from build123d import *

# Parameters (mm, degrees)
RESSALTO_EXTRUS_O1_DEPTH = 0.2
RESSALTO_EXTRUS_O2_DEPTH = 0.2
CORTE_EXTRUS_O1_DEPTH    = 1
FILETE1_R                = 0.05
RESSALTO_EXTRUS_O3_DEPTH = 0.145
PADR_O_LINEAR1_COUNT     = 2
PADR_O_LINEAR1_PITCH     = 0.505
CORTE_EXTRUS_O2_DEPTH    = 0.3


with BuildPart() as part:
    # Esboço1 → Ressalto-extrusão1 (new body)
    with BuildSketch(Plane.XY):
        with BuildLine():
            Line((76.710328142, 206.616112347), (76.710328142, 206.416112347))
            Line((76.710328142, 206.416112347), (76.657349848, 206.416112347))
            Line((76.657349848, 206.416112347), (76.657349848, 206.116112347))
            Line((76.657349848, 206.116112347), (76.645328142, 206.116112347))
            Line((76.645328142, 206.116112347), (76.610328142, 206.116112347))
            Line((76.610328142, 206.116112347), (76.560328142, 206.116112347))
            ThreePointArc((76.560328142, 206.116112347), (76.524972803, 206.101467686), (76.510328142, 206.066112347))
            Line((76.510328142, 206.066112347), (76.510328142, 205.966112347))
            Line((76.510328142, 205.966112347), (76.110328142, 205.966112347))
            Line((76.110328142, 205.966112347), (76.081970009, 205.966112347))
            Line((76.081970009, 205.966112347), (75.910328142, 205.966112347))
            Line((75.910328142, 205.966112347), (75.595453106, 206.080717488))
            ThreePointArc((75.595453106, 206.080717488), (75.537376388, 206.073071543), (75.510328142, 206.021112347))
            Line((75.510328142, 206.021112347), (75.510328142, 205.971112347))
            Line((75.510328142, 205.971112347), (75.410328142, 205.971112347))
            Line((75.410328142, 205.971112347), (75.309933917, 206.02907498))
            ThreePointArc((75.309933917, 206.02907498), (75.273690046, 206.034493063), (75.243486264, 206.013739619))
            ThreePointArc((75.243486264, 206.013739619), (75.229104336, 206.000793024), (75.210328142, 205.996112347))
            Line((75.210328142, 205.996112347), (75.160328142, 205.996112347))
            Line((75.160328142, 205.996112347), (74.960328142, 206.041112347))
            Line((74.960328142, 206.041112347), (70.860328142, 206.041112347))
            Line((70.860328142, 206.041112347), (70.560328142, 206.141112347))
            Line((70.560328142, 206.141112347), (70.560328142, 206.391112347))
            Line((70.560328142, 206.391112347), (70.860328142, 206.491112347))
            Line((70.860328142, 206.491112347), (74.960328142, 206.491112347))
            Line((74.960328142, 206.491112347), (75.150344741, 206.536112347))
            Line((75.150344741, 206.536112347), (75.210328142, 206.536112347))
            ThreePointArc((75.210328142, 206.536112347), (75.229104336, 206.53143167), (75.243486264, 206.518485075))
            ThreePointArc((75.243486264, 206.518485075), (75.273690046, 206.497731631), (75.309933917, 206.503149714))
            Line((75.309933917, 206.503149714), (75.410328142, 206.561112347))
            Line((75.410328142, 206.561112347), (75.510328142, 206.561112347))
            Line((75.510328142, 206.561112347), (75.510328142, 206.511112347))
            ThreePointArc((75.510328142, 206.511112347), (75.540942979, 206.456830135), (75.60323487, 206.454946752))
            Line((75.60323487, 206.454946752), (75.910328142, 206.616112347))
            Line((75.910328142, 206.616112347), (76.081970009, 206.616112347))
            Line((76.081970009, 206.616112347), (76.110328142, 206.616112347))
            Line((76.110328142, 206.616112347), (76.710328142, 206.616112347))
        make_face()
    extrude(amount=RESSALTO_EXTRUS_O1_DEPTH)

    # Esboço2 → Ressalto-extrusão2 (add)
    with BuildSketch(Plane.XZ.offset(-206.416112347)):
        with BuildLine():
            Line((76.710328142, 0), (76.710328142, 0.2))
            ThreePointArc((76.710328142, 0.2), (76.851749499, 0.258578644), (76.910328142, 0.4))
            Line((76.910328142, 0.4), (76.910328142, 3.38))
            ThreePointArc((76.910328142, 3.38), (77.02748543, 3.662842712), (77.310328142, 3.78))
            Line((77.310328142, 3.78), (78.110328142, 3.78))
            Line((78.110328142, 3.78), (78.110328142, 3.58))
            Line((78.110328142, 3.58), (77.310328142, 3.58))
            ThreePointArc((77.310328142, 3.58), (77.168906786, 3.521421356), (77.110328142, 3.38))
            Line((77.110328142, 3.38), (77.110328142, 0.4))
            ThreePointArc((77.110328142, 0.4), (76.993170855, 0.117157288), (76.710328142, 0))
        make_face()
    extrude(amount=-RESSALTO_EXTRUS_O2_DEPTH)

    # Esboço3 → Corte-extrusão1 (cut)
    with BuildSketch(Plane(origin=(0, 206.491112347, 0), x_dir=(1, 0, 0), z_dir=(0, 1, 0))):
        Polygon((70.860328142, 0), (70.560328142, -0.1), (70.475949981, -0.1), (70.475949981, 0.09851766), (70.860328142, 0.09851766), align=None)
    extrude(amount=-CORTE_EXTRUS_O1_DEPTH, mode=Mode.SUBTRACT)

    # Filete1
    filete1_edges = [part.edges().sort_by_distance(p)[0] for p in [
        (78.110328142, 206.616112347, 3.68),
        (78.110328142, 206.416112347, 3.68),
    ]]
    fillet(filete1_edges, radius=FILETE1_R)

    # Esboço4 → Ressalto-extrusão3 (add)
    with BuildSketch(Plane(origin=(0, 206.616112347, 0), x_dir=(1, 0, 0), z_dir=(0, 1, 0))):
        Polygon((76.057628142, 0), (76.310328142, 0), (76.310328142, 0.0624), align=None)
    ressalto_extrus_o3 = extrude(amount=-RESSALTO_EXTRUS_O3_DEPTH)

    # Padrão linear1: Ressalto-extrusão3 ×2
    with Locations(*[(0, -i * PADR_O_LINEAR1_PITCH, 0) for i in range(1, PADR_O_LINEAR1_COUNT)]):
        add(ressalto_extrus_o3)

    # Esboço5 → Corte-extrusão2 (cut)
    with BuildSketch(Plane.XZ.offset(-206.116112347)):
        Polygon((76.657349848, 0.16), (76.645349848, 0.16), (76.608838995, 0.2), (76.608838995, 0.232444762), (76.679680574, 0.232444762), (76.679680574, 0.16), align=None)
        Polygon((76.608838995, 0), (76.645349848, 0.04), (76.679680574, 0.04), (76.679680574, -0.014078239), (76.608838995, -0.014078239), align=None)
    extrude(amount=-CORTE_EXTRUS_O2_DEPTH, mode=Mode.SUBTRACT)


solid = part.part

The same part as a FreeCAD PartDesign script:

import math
import FreeCAD as App
import Part
import Sketcher

V = App.Vector
Q = App.Units.Quantity


def edges_at(feature, points):
    """Names of the edges that pass closest to the given points."""
    edges = feature.Shape.Edges
    near = lambda p: min(range(len(edges)), key=lambda i: edges[i].distToShape(Part.Vertex(*p))[0])
    return sorted({f"Edge{near(p) + 1}" for p in points})


def add_polygon(sketch, points):
    """Adds a closed chain of lines whose ends are joined by coincident constraints."""
    first, n = sketch.GeometryCount, len(points)
    for a, b in zip(points, points[1:] + points[:1]):
        sketch.addGeometry(Part.LineSegment(App.Vector(*a, 0), App.Vector(*b, 0)), False)
    for i in range(n):
        sketch.addConstraint(Sketcher.Constraint("Coincident", first + i, 2, first + (i + 1) % n, 1))

doc = App.newDocument("Part")
params = doc.addObject("Spreadsheet::Sheet", "Params")
for row, (alias, value) in enumerate([
    ("sketch1_radius", "0.05 mm"),
    ("sketch1_radius2", "0.04 mm"),
    ("sketch1_width", "0.8 mm"),
    ("sketch1_width2", "0.1 mm"),
    ("sketch1_width3", "4.1 mm"),
    ("pad1_length", "0.2 mm"),
    ("sketch2_radius", "0.4 mm"),
    ("sketch2_radius2", "0.2 mm"),
    ("sketch2_width", "0.8 mm"),
    ("sketch2_height", "2.98 mm"),
    ("pad2_length", "0.2 mm"),
    ("pocket1_length", "1 mm"),
    ("fillet_radius", "0.05 mm"),
    ("pad3_length", "0.145 mm"),
    ("linearpattern_pitch", "0.505 mm"),
    ("pocket2_length", "0.3 mm"),
], start=1):
    params.set(f"A{row}", alias)
    params.set(f"B{row}", "=" + value)
    params.setAlias(f"B{row}", alias)

body = doc.addObject("PartDesign::Body", "Body")

# Sketch on XY plane
sketch1 = body.newObject("Sketcher::SketchObject", "Sketch")
sketch1.AttachmentSupport = (doc.getObject("XY_Plane"), [""])
sketch1.MapMode = "FlatFace"
sketch1.addGeometry([
    Part.LineSegment(V(76.71, 206.416, 0), V(76.71, 206.616, 0)),  # 0
    Part.LineSegment(V(76.71, 206.616, 0), V(75.91, 206.616, 0)),  # 1
    Part.LineSegment(V(75.91, 206.616, 0), V(75.603, 206.455, 0)),  # 2
    Part.ArcOfCircle(Part.Circle(V(75.574, 206.511, 0), V(0, 0, 1), 0.063), math.radians(180), math.radians(298)),  # 3
    Part.LineSegment(V(75.51, 206.511, 0), V(75.51, 206.561, 0)),  # 4
    Part.LineSegment(V(75.51, 206.561, 0), V(75.41, 206.561, 0)),  # 5
    Part.LineSegment(V(75.41, 206.561, 0), V(75.31, 206.503, 0)),  # 6
    Part.ArcOfCircle(Part.Circle(V(75.285, 206.546, 0), V(0, 0, 1), 0.05), math.radians(-146), math.radians(-60)),  # 7
    Part.ArcOfCircle(Part.Circle(V(75.21, 206.496, 0), V(0, 0, 1), 0.04), math.radians(34), math.radians(90)),  # 8
    Part.LineSegment(V(75.21, 206.536, 0), V(75.15, 206.536, 0)),  # 9
    Part.LineSegment(V(75.15, 206.536, 0), V(74.96, 206.491, 0)),  # 10
    Part.LineSegment(V(74.96, 206.491, 0), V(70.86, 206.491, 0)),  # 11
    Part.LineSegment(V(70.86, 206.491, 0), V(70.56, 206.391, 0)),  # 12
    Part.LineSegment(V(70.56, 206.391, 0), V(70.56, 206.141, 0)),  # 13
    Part.LineSegment(V(70.56, 206.141, 0), V(70.86, 206.041, 0)),  # 14
    Part.LineSegment(V(70.86, 206.041, 0), V(74.96, 206.041, 0)),  # 15
    Part.LineSegment(V(74.96, 206.041, 0), V(75.16, 205.996, 0)),  # 16
    Part.LineSegment(V(75.16, 205.996, 0), V(75.21, 205.996, 0)),  # 17
    Part.ArcOfCircle(Part.Circle(V(75.21, 206.036, 0), V(0, 0, 1), 0.04), math.radians(-90), math.radians(-34)),  # 18
    Part.ArcOfCircle(Part.Circle(V(75.285, 205.986, 0), V(0, 0, 1), 0.05), math.radians(60), math.radians(146)),  # 19
    Part.LineSegment(V(75.31, 206.029, 0), V(75.41, 205.971, 0)),  # 20
    Part.LineSegment(V(75.41, 205.971, 0), V(75.51, 205.971, 0)),  # 21
    Part.LineSegment(V(75.51, 205.971, 0), V(75.51, 206.021, 0)),  # 22
    Part.ArcOfCircle(Part.Circle(V(75.574, 206.021, 0), V(0, 0, 1), 0.063), math.radians(70), math.radians(180)),  # 23
    Part.LineSegment(V(75.595, 206.081, 0), V(75.91, 205.966, 0)),  # 24
    Part.LineSegment(V(75.91, 205.966, 0), V(76.51, 205.966, 0)),  # 25
    Part.LineSegment(V(76.51, 205.966, 0), V(76.51, 206.066, 0)),  # 26
    Part.ArcOfCircle(Part.Circle(V(76.56, 206.066, 0), V(0, 0, 1), 0.05), math.radians(90), math.radians(180)),  # 27
    Part.LineSegment(V(76.56, 206.116, 0), V(76.657, 206.116, 0)),  # 28
    Part.LineSegment(V(76.657, 206.116, 0), V(76.657, 206.416, 0)),  # 29
    Part.LineSegment(V(76.657, 206.416, 0), V(76.71, 206.416, 0)),  # 30
], False)
sketch1.addConstraint([
    Sketcher.Constraint("Coincident", 0, 2, 1, 1),
    Sketcher.Constraint("Coincident", 1, 2, 2, 1),
    Sketcher.Constraint("Tangent", 2, 2, 3, 2),
    Sketcher.Constraint("Tangent", 3, 1, 4, 1),
    Sketcher.Constraint("Coincident", 4, 2, 5, 1),
    Sketcher.Constraint("Coincident", 5, 2, 6, 1),
    Sketcher.Constraint("Tangent", 6, 2, 7, 2),
    Sketcher.Constraint("Tangent", 7, 1, 8, 1),
    Sketcher.Constraint("Tangent", 8, 2, 9, 1),
    Sketcher.Constraint("Coincident", 9, 2, 10, 1),
    Sketcher.Constraint("Coincident", 10, 2, 11, 1),
    Sketcher.Constraint("Coincident", 11, 2, 12, 1),
    Sketcher.Constraint("Coincident", 12, 2, 13, 1),
    Sketcher.Constraint("Coincident", 13, 2, 14, 1),
    Sketcher.Constraint("Coincident", 14, 2, 15, 1),
    Sketcher.Constraint("Coincident", 15, 2, 16, 1),
    Sketcher.Constraint("Coincident", 16, 2, 17, 1),
    Sketcher.Constraint("Tangent", 17, 2, 18, 1),
    Sketcher.Constraint("Tangent", 18, 2, 19, 2),
    Sketcher.Constraint("Tangent", 19, 1, 20, 1),
    Sketcher.Constraint("Coincident", 20, 2, 21, 1),
    Sketcher.Constraint("Coincident", 21, 2, 22, 1),
    Sketcher.Constraint("Tangent", 22, 2, 23, 2),
    Sketcher.Constraint("Tangent", 23, 1, 24, 1),
    Sketcher.Constraint("Coincident", 24, 2, 25, 1),
    Sketcher.Constraint("Coincident", 25, 2, 26, 1),
    Sketcher.Constraint("Tangent", 26, 2, 27, 2),
    Sketcher.Constraint("Tangent", 27, 1, 28, 1),
    Sketcher.Constraint("Coincident", 28, 2, 29, 1),
    Sketcher.Constraint("Coincident", 29, 2, 30, 1),
    Sketcher.Constraint("Coincident", 30, 2, 0, 1),
    Sketcher.Constraint("Vertical", 0),
    Sketcher.Constraint("Horizontal", 1),
    Sketcher.Constraint("Vertical", 4),
    Sketcher.Constraint("Horizontal", 5),
    Sketcher.Constraint("Horizontal", 9),
    Sketcher.Constraint("Horizontal", 11),
    Sketcher.Constraint("Vertical", 13),
    Sketcher.Constraint("Horizontal", 15),
    Sketcher.Constraint("Horizontal", 17),
    Sketcher.Constraint("Horizontal", 21),
    Sketcher.Constraint("Vertical", 22),
    Sketcher.Constraint("Horizontal", 25),
    Sketcher.Constraint("Vertical", 26),
    Sketcher.Constraint("Horizontal", 28),
    Sketcher.Constraint("Vertical", 29),
    Sketcher.Constraint("Horizontal", 30),
    Sketcher.Constraint("Equal", 8, 18),
    Sketcher.Constraint("Equal", 7, 19),
    Sketcher.Constraint("Equal", 3, 23),
    Sketcher.Constraint("Equal", 19, 27),
    Sketcher.Constraint("Vertical", 8, 3, 18, 3),
    Sketcher.Constraint("Vertical", 7, 3, 19, 3),
    Sketcher.Constraint("Vertical", 3, 3, 23, 3),
    Sketcher.Constraint("Vertical", 11, 2, 14, 2),
    Sketcher.Constraint("Vertical", 10, 2, 15, 2),
    Sketcher.Constraint("Vertical", 6, 2, 19, 1),
    Sketcher.Constraint("Vertical", 5, 2, 20, 2),
    Sketcher.Constraint("Vertical", 1, 2, 24, 2),
    Sketcher.Constraint("Equal", 17, 4),
    Sketcher.Constraint("Equal", 4, 22),
    Sketcher.Constraint("Equal", 21, 26),
    Sketcher.Constraint("Equal", 12, 14),
    Sketcher.Constraint("Angle", 6, Q("-150 deg")),
    Sketcher.Constraint("Angle", 24, Q("-20 deg")),
    Sketcher.Constraint("Radius", 7, 0.05),
    Sketcher.Constraint("Radius", 8, 0.04),
    Sketcher.Constraint("DistanceX", 1, 2, 1, 1, 0.8),
    Sketcher.Constraint("DistanceX", 5, 2, 5, 1, 0.1),
    Sketcher.Constraint("DistanceX", 11, 2, 11, 1, 4.1),
    Sketcher.Constraint("DistanceX", 25, 1, 25, 2, 0.6),
    Sketcher.Constraint("DistanceY", 0, 1, 0, 2, 0.2),
    Sketcher.Constraint("DistanceY", 29, 1, 29, 2, 0.3),
    Sketcher.Constraint("DistanceX", 17, 1, 17, 2, 0.05),
    Sketcher.Constraint("DistanceY", 13, 2, 13, 1, 0.25),
    Sketcher.Constraint("DistanceX", 8, 3, 0, 2, 1.5),
    Sketcher.Constraint("DistanceX", 8, 3, 3, 1, 0.3),
    Sketcher.Constraint("DistanceX", 12, 2, 11, 2, 0.3),
    Sketcher.Constraint("DistanceY", 12, 2, 11, 2, 0.1),
    Sketcher.Constraint("DistanceX", 15, 2, 16, 2, 0.2),
    Sketcher.Constraint("DistanceY", 16, 2, 8, 3, 0.5),
    Sketcher.Constraint("Radius", 3, 0.06343),
    Sketcher.Constraint("DistanceY", 23, 3, 3, 3, 0.49),
    Sketcher.Constraint("Distance", 16, 0.205),
    Sketcher.Constraint("DistanceX", 28, 1, 28, 2, 0.097022),
    Sketcher.Constraint("DistanceX", 9, 2, 9, 1, 0.059983),
    Sketcher.Constraint("DistanceX", -1, 1, 3, 3, 75.573759),
    Sketcher.Constraint("DistanceY", -1, 1, 7, 3, 206.546451),
])
sketch1.setExpression("Constraints[65]", "Params.sketch1_radius")
sketch1.setExpression("Constraints[66]", "Params.sketch1_radius2")
sketch1.setExpression("Constraints[67]", "Params.sketch1_width")
sketch1.setExpression("Constraints[68]", "Params.sketch1_width2")
sketch1.setExpression("Constraints[69]", "Params.sketch1_width3")
pad1 = body.newObject("PartDesign::Pad", "Pad")
pad1.Profile = sketch1
pad1.setExpression("Length", "Params.pad1_length")

# Sketch on XZ plane
sketch2 = body.newObject("Sketcher::SketchObject", "Sketch001")
sketch2.AttachmentSupport = (doc.getObject("XZ_Plane"), [""])
sketch2.MapMode = "FlatFace"
sketch2.AttachmentOffset = App.Placement(V(0, 0, -206.416112), App.Rotation())
sketch2.addGeometry([
    Part.LineSegment(V(76.71, 0.2, 0), V(76.71, 0, 0)),  # 0
    Part.ArcOfCircle(Part.Circle(V(76.71, 0.4, 0), V(0, 0, 1), 0.4), math.radians(-90), math.radians(0)),  # 1
    Part.LineSegment(V(77.11, 0.4, 0), V(77.11, 3.38, 0)),  # 2
    Part.ArcOfCircle(Part.Circle(V(77.31, 3.38, 0), V(0, 0, 1), 0.2), math.radians(90), math.radians(180)),  # 3
    Part.LineSegment(V(77.31, 3.58, 0), V(78.11, 3.58, 0)),  # 4
    Part.LineSegment(V(78.11, 3.58, 0), V(78.11, 3.78, 0)),  # 5
    Part.LineSegment(V(78.11, 3.78, 0), V(77.31, 3.78, 0)),  # 6
    Part.ArcOfCircle(Part.Circle(V(77.31, 3.38, 0), V(0, 0, 1), 0.4), math.radians(90), math.radians(180)),  # 7
    Part.LineSegment(V(76.91, 3.38, 0), V(76.91, 0.4, 0)),  # 8
    Part.ArcOfCircle(Part.Circle(V(76.71, 0.4, 0), V(0, 0, 1), 0.2), math.radians(-90), math.radians(0)),  # 9
], False)
sketch2.addConstraint([
    Sketcher.Constraint("Coincident", 0, 2, 1, 1),
    Sketcher.Constraint("Tangent", 1, 2, 2, 1),
    Sketcher.Constraint("Tangent", 2, 2, 3, 2),
    Sketcher.Constraint("Tangent", 3, 1, 4, 1),
    Sketcher.Constraint("Coincident", 4, 2, 5, 1),
    Sketcher.Constraint("Coincident", 5, 2, 6, 1),
    Sketcher.Constraint("Tangent", 6, 2, 7, 1),
    Sketcher.Constraint("Tangent", 7, 2, 8, 1),
    Sketcher.Constraint("Tangent", 8, 2, 9, 2),
    Sketcher.Constraint("Coincident", 9, 1, 0, 1),
    Sketcher.Constraint("Vertical", 0),
    Sketcher.Constraint("Vertical", 2),
    Sketcher.Constraint("Horizontal", 4),
    Sketcher.Constraint("Vertical", 5),
    Sketcher.Constraint("Horizontal", 6),
    Sketcher.Constraint("Vertical", 8),
    Sketcher.Constraint("Coincident", 7, 3, 3, 3),
    Sketcher.Constraint("Coincident", 9, 3, 1, 3),
    Sketcher.Constraint("Equal", 1, 7),
    Sketcher.Constraint("PointOnObject", 0, 2, -1),
    Sketcher.Constraint("Vertical", 9, 3, 0, 2),
    Sketcher.Constraint("Radius", 1, 0.4),
    Sketcher.Constraint("Radius", 3, 0.2),
    Sketcher.Constraint("DistanceX", 4, 1, 4, 2, 0.8),
    Sketcher.Constraint("DistanceY", 2, 1, 2, 2, 2.98),
    Sketcher.Constraint("DistanceX", -1, 1, 1, 3, 76.710328),
])
sketch2.setExpression("Constraints[21]", "Params.sketch2_radius")
sketch2.setExpression("Constraints[22]", "Params.sketch2_radius2")
sketch2.setExpression("Constraints[23]", "Params.sketch2_width")
sketch2.setExpression("Constraints[24]", "Params.sketch2_height")
pad2 = body.newObject("PartDesign::Pad", "Pad001")
pad2.Profile = sketch2
pad2.setExpression("Length", "Params.pad2_length")
pad2.Reversed = True

# Sketch on XZ plane
sketch3 = body.newObject("Sketcher::SketchObject", "Sketch002")
sketch3.AttachmentSupport = (doc.getObject("XZ_Plane"), [""])
sketch3.MapMode = "FlatFace"
sketch3.AttachmentOffset = App.Placement(V(0, 0, -206.491112), App.Rotation())
add_polygon(sketch3, [(70.56, 0.1), (70.86, 0), (70.86, -0.1), (70.48, -0.1), (70.48, 0.1)])  # lines 0-4
sketch3.addConstraint([
    Sketcher.Constraint("Vertical", 1),
    Sketcher.Constraint("Horizontal", 2),
    Sketcher.Constraint("Vertical", 3),
    Sketcher.Constraint("Horizontal", 4),
    Sketcher.Constraint("PointOnObject", 0, 2, -1),
    Sketcher.Constraint("DistanceY", -1, 1, 3, 2, 0.1),
    Sketcher.Constraint("DistanceX", 4, 2, 0, 2, 0.3),
    Sketcher.Constraint("DistanceX", 2, 2, 2, 1, 0.384378),
    Sketcher.Constraint("DistanceY", 1, 2, 1, 1, 0.098518),
    Sketcher.Constraint("DistanceX", -1, 1, 0, 2, 70.860328),
])
pocket1 = body.newObject("PartDesign::Pocket", "Pocket")
pocket1.Profile = sketch3
pocket1.setExpression("Length", "Params.pocket1_length")
pocket1.Reversed = True
doc.recompute()

fillet = body.newObject("PartDesign::Fillet", "Fillet")
fillet.Base = (pocket1, edges_at(pocket1, [(78.11, 206.616, 3.68), (78.11, 206.416, 3.68)]))
fillet.setExpression("Radius", "Params.fillet_radius")

# Sketch on XZ plane
sketch4 = body.newObject("Sketcher::SketchObject", "Sketch003")
sketch4.AttachmentSupport = (doc.getObject("XZ_Plane"), [""])
sketch4.MapMode = "FlatFace"
sketch4.AttachmentOffset = App.Placement(V(0, 0, -206.616112), App.Rotation())
add_polygon(sketch4, [(76.06, 0), (76.31, 0), (76.31, -0.06)])  # lines 0-2
sketch4.addConstraint([
    Sketcher.Constraint("Horizontal", 0),
    Sketcher.Constraint("Vertical", 1),
    Sketcher.Constraint("PointOnObject", 0, 2, -1),
    Sketcher.Constraint("DistanceX", 0, 1, 0, 2, 0.2527),
    Sketcher.Constraint("DistanceY", 1, 2, 1, 1, 0.0624),
    Sketcher.Constraint("DistanceX", -1, 1, 0, 2, 76.310328),
])
pad3 = body.newObject("PartDesign::Pad", "Pad002")
pad3.Profile = sketch4
pad3.setExpression("Length", "Params.pad3_length")
doc.recompute()

linearpattern = body.newObject("PartDesign::LinearPattern", "LinearPattern")
linearpattern.Originals = [pad3]
linearpattern.Direction = (doc.getObject("Y_Axis"), [""])
linearpattern.Mode = "offset"
linearpattern.setExpression("Offset", "Params.linearpattern_pitch")
linearpattern.Occurrences = 2
linearpattern.Reversed = True
body.Tip = linearpattern

# Sketch on XZ plane
sketch5 = body.newObject("Sketcher::SketchObject", "Sketch004")
sketch5.AttachmentSupport = (doc.getObject("XZ_Plane"), [""])
sketch5.MapMode = "FlatFace"
sketch5.AttachmentOffset = App.Placement(V(0, 0, -206.116112), App.Rotation())
add_polygon(sketch5, [(76.645, 0.16), (76.68, 0.16), (76.68, 0.232), (76.609, 0.232), (76.609, 0.2)])  # lines 0-4
add_polygon(sketch5, [(76.645, 0.04), (76.609, 0), (76.609, -0.014), (76.68, -0.014), (76.68, 0.04)])  # lines 5-9
sketch5.addConstraint([
    Sketcher.Constraint("Horizontal", 0),
    Sketcher.Constraint("Vertical", 1),
    Sketcher.Constraint("Horizontal", 2),
    Sketcher.Constraint("Vertical", 3),
    Sketcher.Constraint("Vertical", 6),
    Sketcher.Constraint("Horizontal", 7),
    Sketcher.Constraint("Vertical", 8),
    Sketcher.Constraint("Horizontal", 9),
    Sketcher.Constraint("PointOnObject", 5, 2, -1),
    Sketcher.Constraint("Vertical", 3, 2, 5, 2),
    Sketcher.Constraint("Vertical", 1, 2, 7, 2),
    Sketcher.Constraint("Vertical", 4, 2, 9, 2),
    Sketcher.Constraint("Equal", 4, 5),
    Sketcher.Constraint("DistanceY", -1, 1, 3, 2, 0.2),
    Sketcher.Constraint("DistanceY", -1, 1, 0, 2, 0.16),
    Sketcher.Constraint("DistanceX", 0, 1, 0, 2, 0.034331),
    Sketcher.Constraint("DistanceX", 2, 2, 2, 1, 0.070842),
    Sketcher.Constraint("DistanceY", 6, 2, 6, 1, 0.014078),
    Sketcher.Constraint("DistanceY", 1, 1, 1, 2, 0.072445),
    Sketcher.Constraint("DistanceX", -1, 1, 0, 2, 76.679681),
])
pocket2 = body.newObject("PartDesign::Pocket", "Pocket001")
pocket2.Profile = sketch5
pocket2.setExpression("Length", "Params.pocket2_length")

doc.recompute()
